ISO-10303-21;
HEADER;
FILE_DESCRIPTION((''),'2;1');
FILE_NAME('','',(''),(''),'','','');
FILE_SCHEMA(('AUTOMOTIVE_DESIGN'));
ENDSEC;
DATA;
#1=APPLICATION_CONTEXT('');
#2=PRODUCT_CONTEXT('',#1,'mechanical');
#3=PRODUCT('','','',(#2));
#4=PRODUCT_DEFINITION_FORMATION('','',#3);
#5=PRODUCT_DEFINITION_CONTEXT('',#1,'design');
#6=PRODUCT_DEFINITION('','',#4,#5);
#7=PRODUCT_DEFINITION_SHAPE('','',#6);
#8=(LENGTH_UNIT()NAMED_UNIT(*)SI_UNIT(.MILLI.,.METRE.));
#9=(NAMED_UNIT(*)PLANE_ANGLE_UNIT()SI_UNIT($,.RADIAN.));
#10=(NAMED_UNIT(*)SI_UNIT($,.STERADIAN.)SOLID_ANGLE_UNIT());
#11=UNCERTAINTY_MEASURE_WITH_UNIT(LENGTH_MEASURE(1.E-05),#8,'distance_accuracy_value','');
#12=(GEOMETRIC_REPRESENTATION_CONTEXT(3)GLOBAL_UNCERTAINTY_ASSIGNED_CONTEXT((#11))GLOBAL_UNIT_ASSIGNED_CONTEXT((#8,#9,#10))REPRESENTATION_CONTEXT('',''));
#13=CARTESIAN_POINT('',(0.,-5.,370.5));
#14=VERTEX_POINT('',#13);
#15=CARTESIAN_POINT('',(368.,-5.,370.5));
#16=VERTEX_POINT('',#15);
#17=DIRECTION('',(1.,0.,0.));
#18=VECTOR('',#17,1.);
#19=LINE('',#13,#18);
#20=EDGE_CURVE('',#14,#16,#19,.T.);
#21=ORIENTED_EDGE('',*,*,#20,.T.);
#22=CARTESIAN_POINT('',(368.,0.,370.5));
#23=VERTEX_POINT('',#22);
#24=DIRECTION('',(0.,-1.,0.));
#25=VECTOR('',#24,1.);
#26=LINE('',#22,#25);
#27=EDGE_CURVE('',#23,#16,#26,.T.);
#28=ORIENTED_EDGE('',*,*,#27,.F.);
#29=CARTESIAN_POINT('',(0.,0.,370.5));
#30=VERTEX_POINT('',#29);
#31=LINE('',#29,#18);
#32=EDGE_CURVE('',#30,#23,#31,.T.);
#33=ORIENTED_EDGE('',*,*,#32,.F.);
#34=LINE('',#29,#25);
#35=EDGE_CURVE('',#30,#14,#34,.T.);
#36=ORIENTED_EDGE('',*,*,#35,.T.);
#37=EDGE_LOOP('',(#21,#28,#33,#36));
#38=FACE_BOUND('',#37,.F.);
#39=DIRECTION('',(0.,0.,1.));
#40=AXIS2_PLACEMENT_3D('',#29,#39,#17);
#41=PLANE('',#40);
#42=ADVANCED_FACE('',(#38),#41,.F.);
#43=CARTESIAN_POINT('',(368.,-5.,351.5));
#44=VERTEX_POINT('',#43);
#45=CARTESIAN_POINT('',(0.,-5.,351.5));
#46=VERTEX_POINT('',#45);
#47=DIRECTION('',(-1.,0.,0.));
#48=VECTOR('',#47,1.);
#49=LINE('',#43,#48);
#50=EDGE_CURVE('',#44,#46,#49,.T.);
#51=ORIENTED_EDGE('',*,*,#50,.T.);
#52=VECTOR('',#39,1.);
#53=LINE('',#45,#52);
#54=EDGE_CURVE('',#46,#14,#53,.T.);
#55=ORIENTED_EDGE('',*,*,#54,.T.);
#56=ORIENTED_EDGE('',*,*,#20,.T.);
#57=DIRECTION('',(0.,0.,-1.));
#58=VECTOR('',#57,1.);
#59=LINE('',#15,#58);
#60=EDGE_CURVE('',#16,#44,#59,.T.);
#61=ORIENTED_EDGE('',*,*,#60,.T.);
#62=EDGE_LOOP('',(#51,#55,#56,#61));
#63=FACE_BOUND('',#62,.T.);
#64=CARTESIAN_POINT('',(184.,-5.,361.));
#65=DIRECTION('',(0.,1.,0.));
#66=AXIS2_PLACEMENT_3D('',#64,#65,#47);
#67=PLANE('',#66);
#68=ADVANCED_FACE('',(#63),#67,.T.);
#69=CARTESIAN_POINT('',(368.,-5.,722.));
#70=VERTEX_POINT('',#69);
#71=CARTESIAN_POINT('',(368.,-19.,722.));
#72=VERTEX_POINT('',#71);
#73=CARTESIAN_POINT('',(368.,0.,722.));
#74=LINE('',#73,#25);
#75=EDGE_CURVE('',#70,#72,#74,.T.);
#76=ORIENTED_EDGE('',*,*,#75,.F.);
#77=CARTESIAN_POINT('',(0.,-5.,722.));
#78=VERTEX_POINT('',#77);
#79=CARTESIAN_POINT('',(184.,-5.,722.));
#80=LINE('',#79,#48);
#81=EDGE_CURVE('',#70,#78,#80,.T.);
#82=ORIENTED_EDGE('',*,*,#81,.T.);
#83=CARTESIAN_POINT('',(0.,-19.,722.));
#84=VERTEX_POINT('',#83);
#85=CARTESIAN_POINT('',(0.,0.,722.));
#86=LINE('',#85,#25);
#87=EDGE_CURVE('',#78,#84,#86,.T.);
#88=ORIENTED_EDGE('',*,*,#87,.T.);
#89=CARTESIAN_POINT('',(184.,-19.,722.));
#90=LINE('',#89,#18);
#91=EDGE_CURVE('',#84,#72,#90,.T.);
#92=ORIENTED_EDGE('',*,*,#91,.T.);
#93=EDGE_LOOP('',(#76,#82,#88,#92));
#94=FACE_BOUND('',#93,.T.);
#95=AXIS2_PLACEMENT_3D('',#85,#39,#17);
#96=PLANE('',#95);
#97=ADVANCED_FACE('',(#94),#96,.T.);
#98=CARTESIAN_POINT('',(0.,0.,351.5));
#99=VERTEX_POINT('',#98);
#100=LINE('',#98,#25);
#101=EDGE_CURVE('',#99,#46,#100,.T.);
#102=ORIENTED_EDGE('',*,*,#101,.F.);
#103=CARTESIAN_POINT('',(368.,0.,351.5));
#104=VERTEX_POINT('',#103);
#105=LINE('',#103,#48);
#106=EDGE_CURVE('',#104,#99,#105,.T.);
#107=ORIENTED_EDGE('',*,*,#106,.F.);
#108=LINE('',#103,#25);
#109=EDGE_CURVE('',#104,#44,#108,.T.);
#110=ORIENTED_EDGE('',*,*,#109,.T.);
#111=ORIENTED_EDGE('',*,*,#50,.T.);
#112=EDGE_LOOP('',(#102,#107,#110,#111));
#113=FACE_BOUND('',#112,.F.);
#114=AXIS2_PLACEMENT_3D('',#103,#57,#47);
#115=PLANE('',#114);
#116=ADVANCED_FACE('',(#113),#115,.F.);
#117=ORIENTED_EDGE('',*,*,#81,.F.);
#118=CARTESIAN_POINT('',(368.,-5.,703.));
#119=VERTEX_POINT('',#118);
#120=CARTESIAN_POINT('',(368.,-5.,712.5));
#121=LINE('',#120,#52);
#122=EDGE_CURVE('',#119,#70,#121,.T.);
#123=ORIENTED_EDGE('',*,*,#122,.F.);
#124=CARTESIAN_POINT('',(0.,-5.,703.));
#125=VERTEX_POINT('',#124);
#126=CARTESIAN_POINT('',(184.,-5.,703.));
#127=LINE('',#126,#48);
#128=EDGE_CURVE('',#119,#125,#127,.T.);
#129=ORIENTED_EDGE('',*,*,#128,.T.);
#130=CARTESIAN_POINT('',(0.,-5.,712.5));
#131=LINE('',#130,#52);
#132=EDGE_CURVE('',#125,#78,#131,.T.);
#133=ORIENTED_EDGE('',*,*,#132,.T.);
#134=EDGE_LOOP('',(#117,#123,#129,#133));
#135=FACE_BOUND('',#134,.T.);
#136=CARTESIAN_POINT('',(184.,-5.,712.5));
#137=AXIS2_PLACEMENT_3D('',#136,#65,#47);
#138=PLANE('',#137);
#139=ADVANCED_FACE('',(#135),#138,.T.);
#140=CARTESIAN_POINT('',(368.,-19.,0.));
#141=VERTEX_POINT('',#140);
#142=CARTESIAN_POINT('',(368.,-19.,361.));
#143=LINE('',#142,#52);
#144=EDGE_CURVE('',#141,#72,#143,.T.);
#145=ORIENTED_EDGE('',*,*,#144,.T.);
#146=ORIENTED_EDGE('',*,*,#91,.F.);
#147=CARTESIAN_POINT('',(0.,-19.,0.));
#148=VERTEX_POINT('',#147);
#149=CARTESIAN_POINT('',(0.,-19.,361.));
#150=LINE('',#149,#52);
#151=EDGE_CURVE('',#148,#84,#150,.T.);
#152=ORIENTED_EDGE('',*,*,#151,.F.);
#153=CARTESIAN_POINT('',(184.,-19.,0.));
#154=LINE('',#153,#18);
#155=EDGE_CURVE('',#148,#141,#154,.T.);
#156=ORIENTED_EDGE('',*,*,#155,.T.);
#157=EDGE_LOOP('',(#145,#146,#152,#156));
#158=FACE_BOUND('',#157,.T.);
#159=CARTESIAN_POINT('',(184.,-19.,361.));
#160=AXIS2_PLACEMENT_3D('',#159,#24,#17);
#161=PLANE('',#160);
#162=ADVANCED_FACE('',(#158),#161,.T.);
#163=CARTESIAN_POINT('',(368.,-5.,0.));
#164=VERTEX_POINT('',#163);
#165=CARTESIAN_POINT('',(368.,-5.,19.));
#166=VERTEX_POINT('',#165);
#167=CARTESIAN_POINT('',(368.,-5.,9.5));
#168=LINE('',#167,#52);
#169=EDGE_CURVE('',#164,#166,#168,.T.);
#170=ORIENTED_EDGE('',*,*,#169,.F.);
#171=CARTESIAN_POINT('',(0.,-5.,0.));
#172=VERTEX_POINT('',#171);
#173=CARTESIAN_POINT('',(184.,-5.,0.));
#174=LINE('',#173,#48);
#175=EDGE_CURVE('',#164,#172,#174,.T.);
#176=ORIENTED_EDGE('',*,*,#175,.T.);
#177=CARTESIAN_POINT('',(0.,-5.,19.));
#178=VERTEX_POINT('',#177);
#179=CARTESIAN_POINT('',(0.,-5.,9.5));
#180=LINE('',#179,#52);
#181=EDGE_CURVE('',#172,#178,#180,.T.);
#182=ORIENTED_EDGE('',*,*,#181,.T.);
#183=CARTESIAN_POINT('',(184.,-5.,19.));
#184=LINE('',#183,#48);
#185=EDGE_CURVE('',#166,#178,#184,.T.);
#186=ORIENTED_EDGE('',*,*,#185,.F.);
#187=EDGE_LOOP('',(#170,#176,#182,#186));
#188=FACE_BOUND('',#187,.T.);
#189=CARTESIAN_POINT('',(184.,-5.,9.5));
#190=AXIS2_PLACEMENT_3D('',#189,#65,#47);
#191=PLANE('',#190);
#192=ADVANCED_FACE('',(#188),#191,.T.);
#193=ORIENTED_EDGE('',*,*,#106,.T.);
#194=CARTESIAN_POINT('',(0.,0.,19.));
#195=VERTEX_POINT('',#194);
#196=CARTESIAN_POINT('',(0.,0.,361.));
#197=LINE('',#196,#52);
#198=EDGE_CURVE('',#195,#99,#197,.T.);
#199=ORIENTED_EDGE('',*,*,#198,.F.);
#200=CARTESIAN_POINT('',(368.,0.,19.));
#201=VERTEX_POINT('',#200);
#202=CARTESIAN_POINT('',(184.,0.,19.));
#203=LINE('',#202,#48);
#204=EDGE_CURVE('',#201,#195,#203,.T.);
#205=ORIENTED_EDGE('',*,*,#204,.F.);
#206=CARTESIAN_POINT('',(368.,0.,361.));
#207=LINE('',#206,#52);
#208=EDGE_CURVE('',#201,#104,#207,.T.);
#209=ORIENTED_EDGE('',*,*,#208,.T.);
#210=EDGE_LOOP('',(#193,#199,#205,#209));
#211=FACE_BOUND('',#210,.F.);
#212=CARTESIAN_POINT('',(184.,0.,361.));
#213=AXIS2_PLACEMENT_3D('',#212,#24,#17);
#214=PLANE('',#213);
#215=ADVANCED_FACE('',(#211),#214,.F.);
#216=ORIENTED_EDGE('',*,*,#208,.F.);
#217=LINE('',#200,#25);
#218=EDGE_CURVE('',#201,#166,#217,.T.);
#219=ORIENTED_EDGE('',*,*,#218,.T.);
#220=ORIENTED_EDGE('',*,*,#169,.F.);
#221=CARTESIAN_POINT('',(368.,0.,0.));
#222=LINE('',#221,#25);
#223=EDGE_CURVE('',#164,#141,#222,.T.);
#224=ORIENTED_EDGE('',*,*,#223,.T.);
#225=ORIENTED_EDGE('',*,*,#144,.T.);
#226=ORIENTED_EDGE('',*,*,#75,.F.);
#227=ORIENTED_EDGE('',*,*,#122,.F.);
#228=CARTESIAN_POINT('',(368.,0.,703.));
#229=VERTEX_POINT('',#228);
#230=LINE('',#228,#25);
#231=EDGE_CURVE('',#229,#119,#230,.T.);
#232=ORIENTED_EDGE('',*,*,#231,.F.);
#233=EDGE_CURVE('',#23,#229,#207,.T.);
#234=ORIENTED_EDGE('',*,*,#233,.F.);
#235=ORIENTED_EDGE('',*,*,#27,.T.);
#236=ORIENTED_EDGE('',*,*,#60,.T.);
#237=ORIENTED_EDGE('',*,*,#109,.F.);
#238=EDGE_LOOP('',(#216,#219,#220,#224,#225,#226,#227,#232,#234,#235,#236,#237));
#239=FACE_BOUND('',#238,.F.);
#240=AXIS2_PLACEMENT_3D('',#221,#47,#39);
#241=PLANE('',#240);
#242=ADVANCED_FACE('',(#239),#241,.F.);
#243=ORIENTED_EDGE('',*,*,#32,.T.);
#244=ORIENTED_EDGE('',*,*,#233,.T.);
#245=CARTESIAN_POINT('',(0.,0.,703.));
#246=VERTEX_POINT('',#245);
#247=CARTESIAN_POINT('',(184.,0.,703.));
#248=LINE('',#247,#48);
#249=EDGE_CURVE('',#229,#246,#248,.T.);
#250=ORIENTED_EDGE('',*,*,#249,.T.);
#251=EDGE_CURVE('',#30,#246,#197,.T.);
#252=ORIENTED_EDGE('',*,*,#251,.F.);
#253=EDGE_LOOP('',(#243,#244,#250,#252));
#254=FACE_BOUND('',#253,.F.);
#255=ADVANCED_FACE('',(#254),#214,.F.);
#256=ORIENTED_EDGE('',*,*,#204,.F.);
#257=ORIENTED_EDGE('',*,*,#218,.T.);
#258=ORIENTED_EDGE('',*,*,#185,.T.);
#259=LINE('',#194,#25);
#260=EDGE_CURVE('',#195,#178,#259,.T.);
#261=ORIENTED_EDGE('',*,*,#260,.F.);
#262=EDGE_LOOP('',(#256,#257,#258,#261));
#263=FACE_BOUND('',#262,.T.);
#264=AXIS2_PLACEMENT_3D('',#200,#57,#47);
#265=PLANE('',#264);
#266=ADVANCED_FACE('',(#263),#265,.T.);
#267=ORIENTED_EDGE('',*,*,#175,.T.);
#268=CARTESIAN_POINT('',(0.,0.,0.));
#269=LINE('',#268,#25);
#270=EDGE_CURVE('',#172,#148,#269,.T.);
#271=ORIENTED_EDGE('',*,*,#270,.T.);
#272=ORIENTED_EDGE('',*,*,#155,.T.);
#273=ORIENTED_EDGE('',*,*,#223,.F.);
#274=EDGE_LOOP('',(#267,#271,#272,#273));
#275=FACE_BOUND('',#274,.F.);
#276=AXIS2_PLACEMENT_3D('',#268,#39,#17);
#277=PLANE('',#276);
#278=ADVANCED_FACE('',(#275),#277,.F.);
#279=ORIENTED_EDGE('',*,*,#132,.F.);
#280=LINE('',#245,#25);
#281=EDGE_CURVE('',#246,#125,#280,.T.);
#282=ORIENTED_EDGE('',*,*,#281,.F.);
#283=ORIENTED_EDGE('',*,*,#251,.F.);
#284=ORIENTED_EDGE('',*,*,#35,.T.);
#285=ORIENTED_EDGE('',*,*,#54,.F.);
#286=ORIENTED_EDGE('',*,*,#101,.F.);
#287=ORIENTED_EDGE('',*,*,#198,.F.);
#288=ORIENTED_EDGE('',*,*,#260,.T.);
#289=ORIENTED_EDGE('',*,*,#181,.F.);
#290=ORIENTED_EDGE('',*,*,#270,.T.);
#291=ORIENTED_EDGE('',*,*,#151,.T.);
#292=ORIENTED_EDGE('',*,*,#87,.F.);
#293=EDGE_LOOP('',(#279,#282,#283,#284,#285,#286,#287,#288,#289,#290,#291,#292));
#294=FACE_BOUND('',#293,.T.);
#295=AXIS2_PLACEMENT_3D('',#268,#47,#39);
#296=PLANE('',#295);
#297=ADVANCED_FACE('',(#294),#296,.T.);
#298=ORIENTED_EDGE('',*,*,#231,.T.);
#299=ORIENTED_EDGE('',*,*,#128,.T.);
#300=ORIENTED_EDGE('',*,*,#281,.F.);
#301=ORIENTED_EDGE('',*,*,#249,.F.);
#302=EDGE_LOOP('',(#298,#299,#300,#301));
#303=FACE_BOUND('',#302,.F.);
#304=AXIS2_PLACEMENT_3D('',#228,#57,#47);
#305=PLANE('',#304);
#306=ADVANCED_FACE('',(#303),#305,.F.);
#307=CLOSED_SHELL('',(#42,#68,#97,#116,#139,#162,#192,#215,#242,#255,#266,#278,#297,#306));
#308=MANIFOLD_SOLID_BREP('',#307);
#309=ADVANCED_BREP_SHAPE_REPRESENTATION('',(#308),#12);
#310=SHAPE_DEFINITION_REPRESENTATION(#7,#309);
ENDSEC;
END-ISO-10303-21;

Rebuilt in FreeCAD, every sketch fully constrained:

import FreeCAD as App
import Part
import Sketcher
Q = App.Units.Quantity


def add_polygon(sketch, points):
    """Adds a closed chain of lines whose ends are joined by coincident constraints."""
    first, n = sketch.GeometryCount, len(points)
    for a, b in zip(points, points[1:] + points[:1]):
        sketch.addGeometry(Part.LineSegment(App.Vector(*a, 0), App.Vector(*b, 0)), False)
    for i in range(n):
        sketch.addConstraint(Sketcher.Constraint("Coincident", first + i, 2, first + (i + 1) % n, 1))

doc = App.newDocument("Part")
params = doc.addObject("Spreadsheet::Sheet", "Params")
for row, (alias, value) in enumerate([
    ("sketch1_width", "368 mm"),
    ("sketch1_height", "722 mm"),
    ("pad1_length", "19 mm"),
    ("sketch2_width", "368 mm"),
    ("sketch2_height", "19 mm"),
    ("pocket1_length", "5 mm"),
], start=1):
    params.set(f"A{row}", alias)
    params.set(f"B{row}", "=" + value)
    params.setAlias(f"B{row}", alias)

body = doc.addObject("PartDesign::Body", "Body")

sketch1 = body.newObject("Sketcher::SketchObject", "Sketch")
sketch1.AttachmentSupport = (doc.getObject("XZ_Plane"), [""])
sketch1.MapMode = "FlatFace"
add_polygon(sketch1, [(0, 722), (0, 0), (368, 0), (368, 722)])
sketch1.addConstraint([
    Sketcher.Constraint("Vertical", 0),
    Sketcher.Constraint("Horizontal", 1),
    Sketcher.Constraint("Vertical", 2),
    Sketcher.Constraint("Horizontal", 3),
    Sketcher.Constraint("Coincident", 0, 2, -1, 1),
    Sketcher.Constraint("DistanceX", 1, 1, 1, 2, Q("368 mm")),
    Sketcher.Constraint("DistanceY", 0, 2, 0, 1, Q("722 mm")),
])
sketch1.setExpression("Constraints[9]", "Params.sketch1_width")
sketch1.setExpression("Constraints[10]", "Params.sketch1_height")
pad1 = body.newObject("PartDesign::Pad", "Pad")
pad1.Profile = sketch1
pad1.setExpression("Length", "Params.pad1_length")

sketch2 = body.newObject("Sketcher::SketchObject", "Sketch001")
sketch2.AttachmentSupport = (doc.getObject("XZ_Plane"), [""])
sketch2.MapMode = "FlatFace"
add_polygon(sketch2, [(368, 370.5), (368, 351.5), (0, 351.5), (0, 370.5)])
add_polygon(sketch2, [(368, 19), (368, 0), (0, 0), (0, 19)])
add_polygon(sketch2, [(368, 722), (368, 703), (0, 703), (0, 722)])
sketch2.addConstraint([
    Sketcher.Constraint("Vertical", 0),
    Sketcher.Constraint("Horizontal", 1),
    Sketcher.Constraint("Vertical", 2),
    Sketcher.Constraint("Horizontal", 3),
    Sketcher.Constraint("Vertical", 4),
    Sketcher.Constraint("Horizontal", 5),
    Sketcher.Constraint("Vertical", 6),
    Sketcher.Constraint("Horizontal", 7),
    Sketcher.Constraint("Vertical", 8),
    Sketcher.Constraint("Horizontal", 9),
    Sketcher.Constraint("Vertical", 10),
    Sketcher.Constraint("Horizontal", 11),
    Sketcher.Constraint("Coincident", 5, 2, -1, 1),
    Sketcher.Constraint("PointOnObject", 1, 2, -2),
    Sketcher.Constraint("PointOnObject", 9, 2, -2),
    Sketcher.Constraint("Vertical", 3, 2, 4, 2),
    Sketcher.Constraint("Vertical", 7, 2, 8, 2),
    Sketcher.Constraint("Equal", 2, 4),
    Sketcher.Constraint("Equal", 6, 8),
    Sketcher.Constraint("DistanceX", 1, 2, 1, 1, Q("368 mm")),
    Sketcher.Constraint("DistanceY", 0, 2, 0, 1, Q("19 mm")),
    Sketcher.Constraint("DistanceY", -1, 1, 8, 2, Q("703 mm")),
    Sketcher.Constraint("DistanceY", -1, 1, 0, 2, Q("351.5 mm")),
])
sketch2.setExpression("Constraints[31]", "Params.sketch2_width")
sketch2.setExpression("Constraints[32]", "Params.sketch2_height")
pocket1 = body.newObject("PartDesign::Pocket", "Pocket")
pocket1.Profile = sketch2
pocket1.setExpression("Length", "Params.pocket1_length")
pocket1.Reversed = True

doc.recompute()
